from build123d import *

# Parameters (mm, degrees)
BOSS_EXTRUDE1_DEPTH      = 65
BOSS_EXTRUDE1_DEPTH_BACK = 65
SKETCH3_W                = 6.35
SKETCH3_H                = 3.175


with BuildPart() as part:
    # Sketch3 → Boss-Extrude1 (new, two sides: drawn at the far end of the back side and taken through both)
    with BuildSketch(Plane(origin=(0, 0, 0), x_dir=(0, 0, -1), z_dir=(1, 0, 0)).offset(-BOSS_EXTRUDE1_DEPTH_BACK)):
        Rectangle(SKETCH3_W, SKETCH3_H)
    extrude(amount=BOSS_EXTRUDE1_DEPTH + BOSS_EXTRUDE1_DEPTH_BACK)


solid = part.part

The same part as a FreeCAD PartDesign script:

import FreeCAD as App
import Part
import Sketcher
from FreeCAD import Vector
Q = App.Units.Quantity

doc = App.newDocument("Part")
body = doc.addObject("PartDesign::Body", "Body")

# Sketch on YZ plane
sketch1 = body.newObject("Sketcher::SketchObject", "Sketch")
sketch1.AttachmentSupport = (doc.getObject("YZ_Plane"), [""])
sketch1.MapMode = "FlatFace"
sketch1.addGeometry(Part.LineSegment(Vector(1.5875, 3.175, 0), Vector(-1.5875, 3.175, 0)), False)
sketch1.addGeometry(Part.LineSegment(Vector(-1.5875, 3.175, 0), Vector(-1.5875, -3.175, 0)), False)
sketch1.addGeometry(Part.LineSegment(Vector(-1.5875, -3.175, 0), Vector(1.5875, -3.175, 0)), False)
sketch1.addGeometry(Part.LineSegment(Vector(1.5875, -3.175, 0), Vector(1.5875, 3.175, 0)), False)
sketch1.addConstraint(Sketcher.Constraint("Coincident", 0, 2, 1, 1))
sketch1.addConstraint(Sketcher.Constraint("Coincident", 1, 2, 2, 1))
sketch1.addConstraint(Sketcher.Constraint("Coincident", 2, 2, 3, 1))
sketch1.addConstraint(Sketcher.Constraint("Coincident", 3, 2, 0, 1))
sketch1.addConstraint(Sketcher.Constraint("Horizontal", 0))
sketch1.addConstraint(Sketcher.Constraint("Vertical", 1))
sketch1.addConstraint(Sketcher.Constraint("Horizontal", 2))
sketch1.addConstraint(Sketcher.Constraint("Vertical", 3))
sketch1.addConstraint(Sketcher.Constraint("Symmetric", 0, 2, 2, 2, -1, 1))
sketch1.addConstraint(Sketcher.Constraint("DistanceY", 1, 2, 1, 1, Q("0.25 in")))
sketch1.addConstraint(Sketcher.Constraint("DistanceX", 0, 2, 0, 1, Q("0.125 in")))
pad1 = body.newObject("PartDesign::Pad", "Pad")
pad1.Profile = sketch1
pad1.Type = "TwoLengths"
pad1.Length = 65
pad1.Length2 = 65

doc.recompute()
